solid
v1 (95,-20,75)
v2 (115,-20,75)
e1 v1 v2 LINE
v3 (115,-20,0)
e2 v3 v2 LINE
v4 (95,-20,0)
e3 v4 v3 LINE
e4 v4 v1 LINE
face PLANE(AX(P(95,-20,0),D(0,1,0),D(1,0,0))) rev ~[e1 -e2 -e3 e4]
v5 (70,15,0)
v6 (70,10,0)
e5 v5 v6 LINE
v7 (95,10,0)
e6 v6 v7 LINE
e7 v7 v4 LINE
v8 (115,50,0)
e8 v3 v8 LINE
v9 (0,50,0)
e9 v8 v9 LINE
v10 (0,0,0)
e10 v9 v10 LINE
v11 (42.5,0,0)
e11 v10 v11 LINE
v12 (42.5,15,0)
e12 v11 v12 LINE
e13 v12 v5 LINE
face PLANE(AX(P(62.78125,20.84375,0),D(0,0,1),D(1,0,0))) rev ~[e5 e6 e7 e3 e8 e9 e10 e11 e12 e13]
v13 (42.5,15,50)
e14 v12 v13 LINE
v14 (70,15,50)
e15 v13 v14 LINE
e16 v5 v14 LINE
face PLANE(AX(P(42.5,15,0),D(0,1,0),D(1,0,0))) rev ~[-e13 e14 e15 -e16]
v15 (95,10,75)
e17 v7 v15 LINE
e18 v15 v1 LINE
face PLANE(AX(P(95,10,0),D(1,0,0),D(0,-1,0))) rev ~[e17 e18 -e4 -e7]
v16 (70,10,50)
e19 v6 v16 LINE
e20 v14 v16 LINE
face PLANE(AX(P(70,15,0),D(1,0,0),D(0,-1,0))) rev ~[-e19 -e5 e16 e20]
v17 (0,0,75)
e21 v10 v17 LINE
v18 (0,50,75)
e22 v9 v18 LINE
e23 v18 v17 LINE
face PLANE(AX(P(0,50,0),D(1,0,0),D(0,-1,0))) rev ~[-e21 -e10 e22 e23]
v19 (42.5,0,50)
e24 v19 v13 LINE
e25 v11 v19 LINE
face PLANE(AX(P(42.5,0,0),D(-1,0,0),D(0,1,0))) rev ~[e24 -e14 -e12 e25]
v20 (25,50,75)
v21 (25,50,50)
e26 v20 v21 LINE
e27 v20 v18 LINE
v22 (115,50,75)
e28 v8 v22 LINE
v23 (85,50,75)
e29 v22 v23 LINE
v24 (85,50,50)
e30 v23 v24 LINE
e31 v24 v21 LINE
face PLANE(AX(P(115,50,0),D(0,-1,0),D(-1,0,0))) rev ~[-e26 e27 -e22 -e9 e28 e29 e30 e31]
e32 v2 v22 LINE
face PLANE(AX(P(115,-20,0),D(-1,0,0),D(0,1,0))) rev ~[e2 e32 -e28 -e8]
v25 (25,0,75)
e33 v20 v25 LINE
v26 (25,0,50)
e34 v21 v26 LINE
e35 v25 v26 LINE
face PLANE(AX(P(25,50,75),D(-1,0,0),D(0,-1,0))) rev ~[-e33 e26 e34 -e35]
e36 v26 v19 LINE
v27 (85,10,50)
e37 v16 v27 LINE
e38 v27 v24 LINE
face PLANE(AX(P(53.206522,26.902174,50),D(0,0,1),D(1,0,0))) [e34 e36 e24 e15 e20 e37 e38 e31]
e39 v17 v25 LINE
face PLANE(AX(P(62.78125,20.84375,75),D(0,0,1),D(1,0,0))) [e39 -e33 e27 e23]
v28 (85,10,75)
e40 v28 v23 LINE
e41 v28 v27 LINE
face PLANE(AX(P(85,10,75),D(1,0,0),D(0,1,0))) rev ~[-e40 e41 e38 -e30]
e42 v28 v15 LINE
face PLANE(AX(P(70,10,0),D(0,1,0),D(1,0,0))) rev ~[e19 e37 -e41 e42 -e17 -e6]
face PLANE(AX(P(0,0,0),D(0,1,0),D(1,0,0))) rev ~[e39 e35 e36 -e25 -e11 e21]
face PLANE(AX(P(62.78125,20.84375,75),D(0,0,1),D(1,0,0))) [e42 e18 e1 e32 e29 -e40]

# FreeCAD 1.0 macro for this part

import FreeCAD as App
import Part
import Sketcher

V = App.Vector
Q = App.Units.Quantity

doc = App.newDocument("Part")
params = doc.addObject("Spreadsheet::Sheet", "Params")
for row, (alias, value) in enumerate([
    ("sketch1_width", "25 mm"),
    ("sketch1_width2", "20 mm"),
    ("sketch1_width3", "115 mm"),
    ("sketch1_height", "50 mm"),
    ("sketch1_height2", "15 mm"),
    ("pad1_length", "75 mm"),
    ("sketch2_width", "60 mm"),
    ("sketch2_width2", "15 mm"),
    ("sketch2_height", "50 mm"),
    ("sketch2_height2", "5 mm"),
    ("sketch2_width3", "17.5 mm"),
    ("pocket1_length", "25 mm"),
], start=1):
    params.set(f"A{row}", alias)
    params.set(f"B{row}", "=" + value)
    params.setAlias(f"B{row}", alias)

body = doc.addObject("PartDesign::Body", "Body")

# Sketch on XY plane
sketch1 = body.newObject("Sketcher::SketchObject", "Sketch")
sketch1.AttachmentSupport = (doc.getObject("XY_Plane"), [""])
sketch1.MapMode = "FlatFace"
sketch1.addGeometry([
    Part.LineSegment(V(0, 50, 0), V(0, 0, 0)),  # 0
    Part.LineSegment(V(0, 0, 0), V(42, 0, 0)),  # 1
    Part.LineSegment(V(42, 0, 0), V(42, 15, 0)),  # 2
    Part.LineSegment(V(42, 15, 0), V(70, 15, 0)),  # 3
    Part.LineSegment(V(70, 15, 0), V(70, 10, 0)),  # 4
    Part.LineSegment(V(70, 10, 0), V(95, 10, 0)),  # 5
    Part.LineSegment(V(95, 10, 0), V(95, -20, 0)),  # 6
    Part.LineSegment(V(95, -20, 0), V(115, -20, 0)),  # 7
    Part.LineSegment(V(115, -20, 0), V(115, 50, 0)),  # 8
    Part.LineSegment(V(115, 50, 0), V(0, 50, 0)),  # 9
], False)
sketch1.addConstraint([
    Sketcher.Constraint("Coincident", 0, 2, 1, 1),
    Sketcher.Constraint("Coincident", 1, 2, 2, 1),
    Sketcher.Constraint("Coincident", 2, 2, 3, 1),
    Sketcher.Constraint("Coincident", 3, 2, 4, 1),
    Sketcher.Constraint("Coincident", 4, 2, 5, 1),
    Sketcher.Constraint("Coincident", 5, 2, 6, 1),
    Sketcher.Constraint("Coincident", 6, 2, 7, 1),
    Sketcher.Constraint("Coincident", 7, 2, 8, 1),
    Sketcher.Constraint("Coincident", 8, 2, 9, 1),
    Sketcher.Constraint("Coincident", 9, 2, 0, 1),
    Sketcher.Constraint("Vertical", 0),
    Sketcher.Constraint("Horizontal", 1),
    Sketcher.Constraint("Vertical", 2),
    Sketcher.Constraint("Horizontal", 3),
    Sketcher.Constraint("Vertical", 4),
    Sketcher.Constraint("Horizontal", 5),
    Sketcher.Constraint("Vertical", 6),
    Sketcher.Constraint("Horizontal", 7),
    Sketcher.Constraint("Vertical", 8),
    Sketcher.Constraint("Horizontal", 9),
    Sketcher.Constraint("Coincident", 0, 2, -1, 1),
    Sketcher.Constraint("DistanceX", 5, 1, 5, 2, Q("25 mm")),
    Sketcher.Constraint("DistanceX", 7, 1, 7, 2, Q("20 mm")),
    Sketcher.Constraint("DistanceX", 9, 2, 9, 1, Q("115 mm")),
    Sketcher.Constraint("DistanceY", 0, 2, 0, 1, Q("50 mm")),
    Sketcher.Constraint("DistanceY", 2, 1, 2, 2, Q("15 mm")),
    Sketcher.Constraint("DistanceY", 4, 2, 4, 1, Q("5 mm")),
    Sketcher.Constraint("DistanceY", 6, 2, 6, 1, Q("30 mm")),
    Sketcher.Constraint("DistanceX", 1, 1, 1, 2, Q("42.5 mm")),
])
sketch1.setExpression("Constraints[21]", "Params.sketch1_width")
sketch1.setExpression("Constraints[22]", "Params.sketch1_width2")
sketch1.setExpression("Constraints[23]", "Params.sketch1_width3")
sketch1.setExpression("Constraints[24]", "Params.sketch1_height")
sketch1.setExpression("Constraints[25]", "Params.sketch1_height2")
pad1 = body.newObject("PartDesign::Pad", "Pad")
pad1.Profile = sketch1
pad1.setExpression("Length", "Params.pad1_length")

# Sketch on XY plane
sketch2 = body.newObject("Sketcher::SketchObject", "Sketch001")
sketch2.AttachmentSupport = (doc.getObject("XY_Plane"), [""])
sketch2.MapMode = "FlatFace"
sketch2.AttachmentOffset = App.Placement(V(0, 0, 75), App.Rotation())
sketch2.addGeometry([
    Part.LineSegment(V(85, 50, 0), V(25, 50, 0)),  # 0
    Part.LineSegment(V(25, 50, 0), V(25, 0, 0)),  # 1
    Part.LineSegment(V(25, 0, 0), V(42, 0, 0)),  # 2
    Part.LineSegment(V(42, 0, 0), V(42, 15, 0)),  # 3
    Part.LineSegment(V(42, 15, 0), V(70, 15, 0)),  # 4
    Part.LineSegment(V(70, 15, 0), V(70, 10, 0)),  # 5
    Part.LineSegment(V(70, 10, 0), V(85, 10, 0)),  # 6
    Part.LineSegment(V(85, 10, 0), V(85, 50, 0)),  # 7
], False)
sketch2.addConstraint([
    Sketcher.Constraint("Coincident", 0, 2, 1, 1),
    Sketcher.Constraint("Coincident", 1, 2, 2, 1),
    Sketcher.Constraint("Coincident", 2, 2, 3, 1),
    Sketcher.Constraint("Coincident", 3, 2, 4, 1),
    Sketcher.Constraint("Coincident", 4, 2, 5, 1),
    Sketcher.Constraint("Coincident", 5, 2, 6, 1),
    Sketcher.Constraint("Coincident", 6, 2, 7, 1),
    Sketcher.Constraint("Coincident", 7, 2, 0, 1),
    Sketcher.Constraint("Horizontal", 0),
    Sketcher.Constraint("Vertical", 1),
    Sketcher.Constraint("Horizontal", 2),
    Sketcher.Constraint("Vertical", 3),
    Sketcher.Constraint("Horizontal", 4),
    Sketcher.Constraint("Vertical", 5),
    Sketcher.Constraint("Horizontal", 6),
    Sketcher.Constraint("Vertical", 7),
    Sketcher.Constraint("PointOnObject", 1, 2, -1),
    Sketcher.Constraint("Equal", 6, 3),
    Sketcher.Constraint("DistanceX", 0, 2, 0, 1, Q("60 mm")),
    Sketcher.Constraint("DistanceX", 6, 1, 6, 2, Q("15 mm")),
    Sketcher.Constraint("DistanceY", 1, 2, 1, 1, Q("50 mm")),
    Sketcher.Constraint("DistanceY", 5, 2, 5, 1, Q("5 mm")),
    Sketcher.Constraint("DistanceX", 2, 1, 2, 2, Q("17.5 mm")),
    Sketcher.Constraint("DistanceX", -1, 1, 0, 2, Q("25 mm")),
])
sketch2.setExpression("Constraints[18]", "Params.sketch2_width")
sketch2.setExpression("Constraints[19]", "Params.sketch2_width2")
sketch2.setExpression("Constraints[20]", "Params.sketch2_height")
sketch2.setExpression("Constraints[21]", "Params.sketch2_height2")
sketch2.setExpression("Constraints[22]", "Params.sketch2_width3")
pocket1 = body.newObject("PartDesign::Pocket", "Pocket")
pocket1.Profile = sketch2
pocket1.setExpression("Length", "Params.pocket1_length")

doc.recompute()
